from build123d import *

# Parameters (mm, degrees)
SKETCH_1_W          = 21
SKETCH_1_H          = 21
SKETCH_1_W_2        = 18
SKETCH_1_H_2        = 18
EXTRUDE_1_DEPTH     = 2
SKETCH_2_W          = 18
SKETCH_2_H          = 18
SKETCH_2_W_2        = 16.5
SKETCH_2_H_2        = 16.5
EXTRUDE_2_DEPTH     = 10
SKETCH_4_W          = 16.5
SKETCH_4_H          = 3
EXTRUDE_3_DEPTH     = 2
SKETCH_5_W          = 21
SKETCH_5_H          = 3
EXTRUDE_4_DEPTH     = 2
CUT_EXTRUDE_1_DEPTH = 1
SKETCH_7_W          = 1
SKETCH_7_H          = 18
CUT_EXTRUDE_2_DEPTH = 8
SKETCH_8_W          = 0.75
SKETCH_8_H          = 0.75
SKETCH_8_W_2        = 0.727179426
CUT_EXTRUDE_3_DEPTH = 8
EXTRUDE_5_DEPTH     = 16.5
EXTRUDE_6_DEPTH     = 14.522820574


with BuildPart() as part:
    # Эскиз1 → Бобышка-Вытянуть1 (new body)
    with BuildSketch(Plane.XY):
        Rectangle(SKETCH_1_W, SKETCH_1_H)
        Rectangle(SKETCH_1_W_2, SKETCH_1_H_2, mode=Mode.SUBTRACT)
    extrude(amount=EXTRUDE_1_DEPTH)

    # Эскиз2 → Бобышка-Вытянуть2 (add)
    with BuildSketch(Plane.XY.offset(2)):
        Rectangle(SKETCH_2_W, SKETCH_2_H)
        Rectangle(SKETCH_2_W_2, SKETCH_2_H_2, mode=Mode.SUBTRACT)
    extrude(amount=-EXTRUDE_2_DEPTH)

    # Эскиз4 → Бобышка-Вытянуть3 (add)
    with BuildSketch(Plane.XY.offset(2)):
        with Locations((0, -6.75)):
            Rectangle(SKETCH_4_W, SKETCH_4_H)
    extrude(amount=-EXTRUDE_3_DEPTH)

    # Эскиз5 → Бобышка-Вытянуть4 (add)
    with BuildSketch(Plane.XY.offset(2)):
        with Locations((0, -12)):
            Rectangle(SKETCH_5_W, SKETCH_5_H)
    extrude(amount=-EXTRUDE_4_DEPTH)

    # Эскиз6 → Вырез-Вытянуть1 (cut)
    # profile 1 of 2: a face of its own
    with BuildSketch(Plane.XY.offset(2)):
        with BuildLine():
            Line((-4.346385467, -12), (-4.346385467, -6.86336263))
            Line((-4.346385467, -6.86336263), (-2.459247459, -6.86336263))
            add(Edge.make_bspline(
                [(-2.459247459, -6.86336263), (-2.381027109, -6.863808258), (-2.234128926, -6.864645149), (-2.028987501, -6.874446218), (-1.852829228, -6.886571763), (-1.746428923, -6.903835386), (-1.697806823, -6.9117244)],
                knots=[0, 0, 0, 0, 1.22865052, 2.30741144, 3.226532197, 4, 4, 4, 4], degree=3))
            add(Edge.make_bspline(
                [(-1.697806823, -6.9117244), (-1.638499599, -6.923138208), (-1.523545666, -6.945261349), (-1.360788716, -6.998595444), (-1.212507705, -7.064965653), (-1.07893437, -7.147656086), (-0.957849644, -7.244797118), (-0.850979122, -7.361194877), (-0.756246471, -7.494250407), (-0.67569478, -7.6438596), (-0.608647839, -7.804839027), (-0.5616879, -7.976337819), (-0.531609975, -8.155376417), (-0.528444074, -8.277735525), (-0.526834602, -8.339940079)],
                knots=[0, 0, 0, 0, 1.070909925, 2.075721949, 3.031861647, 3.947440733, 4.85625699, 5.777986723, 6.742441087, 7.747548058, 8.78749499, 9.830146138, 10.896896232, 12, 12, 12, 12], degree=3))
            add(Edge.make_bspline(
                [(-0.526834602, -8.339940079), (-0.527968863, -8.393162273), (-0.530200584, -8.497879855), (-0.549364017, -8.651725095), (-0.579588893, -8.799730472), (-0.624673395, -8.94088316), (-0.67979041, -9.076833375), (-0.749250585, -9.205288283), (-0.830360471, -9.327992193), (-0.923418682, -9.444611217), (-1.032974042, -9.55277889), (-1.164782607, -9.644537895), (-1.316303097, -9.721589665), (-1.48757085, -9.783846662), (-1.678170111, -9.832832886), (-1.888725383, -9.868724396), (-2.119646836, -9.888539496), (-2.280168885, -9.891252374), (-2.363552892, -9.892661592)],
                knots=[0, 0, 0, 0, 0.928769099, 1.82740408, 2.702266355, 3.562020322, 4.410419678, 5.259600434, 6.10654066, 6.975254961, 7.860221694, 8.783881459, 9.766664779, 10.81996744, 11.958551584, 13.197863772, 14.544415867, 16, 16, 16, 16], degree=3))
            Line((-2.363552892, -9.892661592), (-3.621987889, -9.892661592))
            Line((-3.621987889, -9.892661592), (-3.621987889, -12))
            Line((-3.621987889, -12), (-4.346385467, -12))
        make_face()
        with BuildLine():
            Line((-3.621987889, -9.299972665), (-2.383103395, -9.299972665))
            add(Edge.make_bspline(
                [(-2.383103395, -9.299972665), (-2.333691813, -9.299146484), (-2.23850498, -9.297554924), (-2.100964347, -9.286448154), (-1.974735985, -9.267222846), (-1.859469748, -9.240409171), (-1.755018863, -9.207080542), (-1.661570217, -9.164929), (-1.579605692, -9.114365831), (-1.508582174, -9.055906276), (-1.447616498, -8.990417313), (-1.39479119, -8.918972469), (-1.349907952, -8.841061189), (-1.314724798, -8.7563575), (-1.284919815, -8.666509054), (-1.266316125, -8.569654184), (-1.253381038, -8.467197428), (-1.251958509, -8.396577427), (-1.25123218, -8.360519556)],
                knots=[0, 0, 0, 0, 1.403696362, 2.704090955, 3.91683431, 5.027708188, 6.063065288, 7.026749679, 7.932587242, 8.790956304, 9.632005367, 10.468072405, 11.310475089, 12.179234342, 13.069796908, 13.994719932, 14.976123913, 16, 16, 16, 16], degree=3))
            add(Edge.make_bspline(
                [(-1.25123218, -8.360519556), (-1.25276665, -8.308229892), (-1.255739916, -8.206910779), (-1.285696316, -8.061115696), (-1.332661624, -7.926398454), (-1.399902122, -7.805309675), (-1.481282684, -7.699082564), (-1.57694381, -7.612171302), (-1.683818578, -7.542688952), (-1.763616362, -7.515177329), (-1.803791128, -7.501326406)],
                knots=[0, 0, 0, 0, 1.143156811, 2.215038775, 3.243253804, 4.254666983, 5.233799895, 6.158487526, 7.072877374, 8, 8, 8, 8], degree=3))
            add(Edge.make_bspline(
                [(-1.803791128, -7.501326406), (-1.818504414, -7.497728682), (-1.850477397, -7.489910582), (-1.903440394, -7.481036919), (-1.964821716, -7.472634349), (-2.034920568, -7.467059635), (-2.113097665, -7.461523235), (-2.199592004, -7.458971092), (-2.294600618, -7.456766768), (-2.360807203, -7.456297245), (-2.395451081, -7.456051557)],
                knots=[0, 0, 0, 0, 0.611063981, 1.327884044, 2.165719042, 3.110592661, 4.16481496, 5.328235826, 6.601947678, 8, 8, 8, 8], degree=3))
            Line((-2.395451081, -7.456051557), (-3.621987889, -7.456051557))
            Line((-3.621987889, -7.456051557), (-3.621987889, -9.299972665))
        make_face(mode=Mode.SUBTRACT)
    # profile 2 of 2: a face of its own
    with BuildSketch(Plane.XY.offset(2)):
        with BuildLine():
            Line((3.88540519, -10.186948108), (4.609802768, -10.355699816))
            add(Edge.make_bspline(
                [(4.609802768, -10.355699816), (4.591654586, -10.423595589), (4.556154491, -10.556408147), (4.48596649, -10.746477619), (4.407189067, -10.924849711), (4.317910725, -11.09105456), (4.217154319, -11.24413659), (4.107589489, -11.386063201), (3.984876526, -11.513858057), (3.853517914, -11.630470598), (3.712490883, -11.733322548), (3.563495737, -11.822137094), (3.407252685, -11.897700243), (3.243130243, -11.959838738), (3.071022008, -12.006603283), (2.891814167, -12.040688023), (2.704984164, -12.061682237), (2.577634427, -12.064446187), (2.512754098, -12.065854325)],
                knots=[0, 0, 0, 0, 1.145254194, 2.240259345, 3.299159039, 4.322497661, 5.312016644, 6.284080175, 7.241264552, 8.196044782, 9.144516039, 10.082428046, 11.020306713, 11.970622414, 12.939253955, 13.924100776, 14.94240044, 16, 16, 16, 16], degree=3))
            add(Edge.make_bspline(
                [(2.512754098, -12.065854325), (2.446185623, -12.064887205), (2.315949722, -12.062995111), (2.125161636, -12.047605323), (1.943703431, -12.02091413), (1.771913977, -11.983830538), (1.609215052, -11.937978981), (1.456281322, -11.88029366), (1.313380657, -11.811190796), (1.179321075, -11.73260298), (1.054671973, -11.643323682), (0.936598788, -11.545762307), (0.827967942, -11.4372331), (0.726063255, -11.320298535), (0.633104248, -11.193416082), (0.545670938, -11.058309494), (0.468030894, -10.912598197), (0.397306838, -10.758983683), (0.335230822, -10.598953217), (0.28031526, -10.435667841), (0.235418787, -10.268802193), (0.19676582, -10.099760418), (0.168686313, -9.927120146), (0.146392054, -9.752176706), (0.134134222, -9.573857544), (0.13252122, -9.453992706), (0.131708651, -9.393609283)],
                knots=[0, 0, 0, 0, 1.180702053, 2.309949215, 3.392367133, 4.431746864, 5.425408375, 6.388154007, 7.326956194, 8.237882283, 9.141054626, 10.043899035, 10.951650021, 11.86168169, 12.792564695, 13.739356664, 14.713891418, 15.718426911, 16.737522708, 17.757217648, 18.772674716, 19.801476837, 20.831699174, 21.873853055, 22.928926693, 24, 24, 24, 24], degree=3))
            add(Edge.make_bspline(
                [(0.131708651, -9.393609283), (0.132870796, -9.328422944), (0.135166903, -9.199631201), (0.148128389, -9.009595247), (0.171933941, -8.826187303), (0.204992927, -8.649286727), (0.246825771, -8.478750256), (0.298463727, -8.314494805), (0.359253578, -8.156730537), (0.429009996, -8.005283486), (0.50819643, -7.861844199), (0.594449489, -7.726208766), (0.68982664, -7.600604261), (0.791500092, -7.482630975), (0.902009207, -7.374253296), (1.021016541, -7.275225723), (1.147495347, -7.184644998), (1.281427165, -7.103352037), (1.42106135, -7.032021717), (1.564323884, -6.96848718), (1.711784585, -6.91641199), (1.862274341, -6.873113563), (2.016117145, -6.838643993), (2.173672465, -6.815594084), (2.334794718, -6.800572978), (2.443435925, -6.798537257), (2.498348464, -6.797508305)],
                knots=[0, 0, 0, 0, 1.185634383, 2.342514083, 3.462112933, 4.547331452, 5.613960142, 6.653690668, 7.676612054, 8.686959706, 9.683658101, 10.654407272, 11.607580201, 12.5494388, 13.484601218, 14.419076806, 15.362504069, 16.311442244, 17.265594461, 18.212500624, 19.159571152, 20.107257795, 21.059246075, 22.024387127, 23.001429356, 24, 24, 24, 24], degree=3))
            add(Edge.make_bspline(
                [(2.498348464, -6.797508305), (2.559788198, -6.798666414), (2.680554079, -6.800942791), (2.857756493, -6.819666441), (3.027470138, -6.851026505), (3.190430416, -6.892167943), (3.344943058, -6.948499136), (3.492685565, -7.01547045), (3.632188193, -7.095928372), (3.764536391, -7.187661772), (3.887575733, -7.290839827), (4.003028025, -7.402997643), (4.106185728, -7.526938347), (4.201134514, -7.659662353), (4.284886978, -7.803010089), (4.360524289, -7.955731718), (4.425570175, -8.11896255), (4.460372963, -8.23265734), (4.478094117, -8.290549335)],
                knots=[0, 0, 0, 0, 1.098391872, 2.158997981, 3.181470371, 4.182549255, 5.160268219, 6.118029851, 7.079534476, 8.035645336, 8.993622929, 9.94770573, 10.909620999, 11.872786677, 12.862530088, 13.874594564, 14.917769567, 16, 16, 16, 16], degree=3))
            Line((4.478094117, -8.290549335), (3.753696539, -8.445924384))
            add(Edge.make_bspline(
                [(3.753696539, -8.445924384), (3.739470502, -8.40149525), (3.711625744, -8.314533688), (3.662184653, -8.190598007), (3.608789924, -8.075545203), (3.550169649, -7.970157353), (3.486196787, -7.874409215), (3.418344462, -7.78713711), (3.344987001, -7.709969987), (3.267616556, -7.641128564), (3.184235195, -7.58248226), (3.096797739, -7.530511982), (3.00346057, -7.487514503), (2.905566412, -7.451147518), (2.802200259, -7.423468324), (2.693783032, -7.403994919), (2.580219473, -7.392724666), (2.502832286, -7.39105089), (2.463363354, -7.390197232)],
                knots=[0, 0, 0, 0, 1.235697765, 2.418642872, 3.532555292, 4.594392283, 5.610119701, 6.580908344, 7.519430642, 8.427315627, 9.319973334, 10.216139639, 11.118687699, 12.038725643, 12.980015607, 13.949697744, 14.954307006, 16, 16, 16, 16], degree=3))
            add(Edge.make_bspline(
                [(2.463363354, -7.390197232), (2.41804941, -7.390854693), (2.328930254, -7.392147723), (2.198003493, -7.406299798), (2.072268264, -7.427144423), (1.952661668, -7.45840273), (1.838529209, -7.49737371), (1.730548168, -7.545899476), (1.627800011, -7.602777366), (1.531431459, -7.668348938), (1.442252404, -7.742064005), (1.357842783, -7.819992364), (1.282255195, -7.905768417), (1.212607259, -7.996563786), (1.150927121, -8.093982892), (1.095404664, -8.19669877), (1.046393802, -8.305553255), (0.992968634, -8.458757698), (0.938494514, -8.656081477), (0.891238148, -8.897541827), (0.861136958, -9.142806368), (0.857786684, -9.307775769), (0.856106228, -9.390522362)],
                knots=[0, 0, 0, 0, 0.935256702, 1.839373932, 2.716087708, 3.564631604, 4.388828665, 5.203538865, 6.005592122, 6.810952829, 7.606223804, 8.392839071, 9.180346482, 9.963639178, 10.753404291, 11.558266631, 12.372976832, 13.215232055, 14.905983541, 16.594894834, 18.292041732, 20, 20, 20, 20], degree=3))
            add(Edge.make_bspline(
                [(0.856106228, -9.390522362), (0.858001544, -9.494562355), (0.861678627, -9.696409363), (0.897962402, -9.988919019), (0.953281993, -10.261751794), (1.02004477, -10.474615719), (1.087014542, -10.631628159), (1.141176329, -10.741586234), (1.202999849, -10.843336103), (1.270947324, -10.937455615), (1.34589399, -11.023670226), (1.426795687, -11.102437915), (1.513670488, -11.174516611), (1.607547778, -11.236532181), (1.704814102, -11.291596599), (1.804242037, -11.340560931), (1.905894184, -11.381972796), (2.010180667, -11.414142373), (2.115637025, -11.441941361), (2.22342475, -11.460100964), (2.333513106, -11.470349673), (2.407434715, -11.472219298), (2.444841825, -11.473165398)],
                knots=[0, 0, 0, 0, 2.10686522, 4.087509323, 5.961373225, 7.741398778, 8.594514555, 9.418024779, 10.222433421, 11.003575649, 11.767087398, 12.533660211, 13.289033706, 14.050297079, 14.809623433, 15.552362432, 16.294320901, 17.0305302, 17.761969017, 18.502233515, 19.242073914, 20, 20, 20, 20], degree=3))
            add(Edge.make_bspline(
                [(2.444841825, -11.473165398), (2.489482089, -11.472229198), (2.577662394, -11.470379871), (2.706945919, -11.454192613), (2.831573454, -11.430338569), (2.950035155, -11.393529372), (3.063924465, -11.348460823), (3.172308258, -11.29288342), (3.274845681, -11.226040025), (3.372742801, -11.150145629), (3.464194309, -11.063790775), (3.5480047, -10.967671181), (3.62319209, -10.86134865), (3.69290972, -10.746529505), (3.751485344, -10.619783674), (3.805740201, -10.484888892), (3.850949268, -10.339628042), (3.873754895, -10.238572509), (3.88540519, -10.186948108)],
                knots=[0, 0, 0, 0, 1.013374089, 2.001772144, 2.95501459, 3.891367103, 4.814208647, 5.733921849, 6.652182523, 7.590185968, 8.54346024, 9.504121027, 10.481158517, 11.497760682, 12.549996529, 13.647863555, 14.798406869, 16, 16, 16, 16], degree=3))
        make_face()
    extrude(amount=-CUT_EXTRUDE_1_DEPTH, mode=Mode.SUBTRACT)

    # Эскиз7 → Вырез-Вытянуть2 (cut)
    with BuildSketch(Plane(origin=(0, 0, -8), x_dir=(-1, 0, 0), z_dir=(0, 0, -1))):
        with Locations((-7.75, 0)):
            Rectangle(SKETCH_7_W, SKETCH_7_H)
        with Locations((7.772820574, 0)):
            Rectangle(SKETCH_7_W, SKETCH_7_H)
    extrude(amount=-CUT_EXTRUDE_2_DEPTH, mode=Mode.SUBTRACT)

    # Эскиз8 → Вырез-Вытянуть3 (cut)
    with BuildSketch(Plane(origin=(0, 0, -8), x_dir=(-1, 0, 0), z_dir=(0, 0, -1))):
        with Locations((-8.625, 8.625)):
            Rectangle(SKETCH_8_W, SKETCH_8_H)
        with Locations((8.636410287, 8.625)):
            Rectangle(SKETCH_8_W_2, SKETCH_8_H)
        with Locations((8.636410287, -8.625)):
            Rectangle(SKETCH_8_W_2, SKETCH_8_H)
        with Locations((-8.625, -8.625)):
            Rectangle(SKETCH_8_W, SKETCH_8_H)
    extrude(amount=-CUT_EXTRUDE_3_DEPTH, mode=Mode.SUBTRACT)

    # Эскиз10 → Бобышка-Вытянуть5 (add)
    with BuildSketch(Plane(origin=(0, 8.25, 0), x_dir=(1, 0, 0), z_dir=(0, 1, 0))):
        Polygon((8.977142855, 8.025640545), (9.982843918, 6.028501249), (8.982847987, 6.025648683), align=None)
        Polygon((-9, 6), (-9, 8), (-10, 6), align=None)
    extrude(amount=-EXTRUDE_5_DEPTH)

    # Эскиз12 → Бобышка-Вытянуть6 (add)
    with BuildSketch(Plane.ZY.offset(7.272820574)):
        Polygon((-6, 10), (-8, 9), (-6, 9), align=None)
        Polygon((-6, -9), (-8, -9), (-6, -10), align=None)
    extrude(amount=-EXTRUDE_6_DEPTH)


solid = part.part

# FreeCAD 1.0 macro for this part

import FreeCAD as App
import Part
import Sketcher

doc = App.newDocument("Part")
body = doc.addObject("PartDesign::Body", "Body")

# Sketch on XY plane
sketch1 = body.newObject("Sketcher::SketchObject", "Sketch")
sketch1.AttachmentSupport = (doc.getObject("XY_Plane"), [""])
sketch1.MapMode = "FlatFace"
sketch1.addGeometry(Part.LineSegment(App.Vector(-10.5, 10.5, 0), App.Vector(-10.5, -10.5, 0)), False)
sketch1.addGeometry(Part.LineSegment(App.Vector(-10.5, -10.5, 0), App.Vector(10.5, -10.5, 0)), False)
sketch1.addGeometry(Part.LineSegment(App.Vector(10.5, -10.5, 0), App.Vector(10.5, 10.5, 0)), False)
sketch1.addGeometry(Part.LineSegment(App.Vector(10.5, 10.5, 0), App.Vector(-10.5, 10.5, 0)), False)
sketch1.addGeometry(Part.LineSegment(App.Vector(9, -9, 0), App.Vector(-9, -9, 0)), False)
sketch1.addGeometry(Part.LineSegment(App.Vector(-9, -9, 0), App.Vector(-9, 9, 0)), False)
sketch1.addGeometry(Part.LineSegment(App.Vector(-9, 9, 0), App.Vector(9, 9, 0)), False)
sketch1.addGeometry(Part.LineSegment(App.Vector(9, 9, 0), App.Vector(9, -9, 0)), False)
sketch1.addConstraint(Sketcher.Constraint("Coincident", 0, 2, 1, 1))
sketch1.addConstraint(Sketcher.Constraint("Coincident", 1, 2, 2, 1))
sketch1.addConstraint(Sketcher.Constraint("Coincident", 2, 2, 3, 1))
sketch1.addConstraint(Sketcher.Constraint("Coincident", 3, 2, 0, 1))
sketch1.addConstraint(Sketcher.Constraint("Coincident", 4, 2, 5, 1))
sketch1.addConstraint(Sketcher.Constraint("Coincident", 5, 2, 6, 1))
sketch1.addConstraint(Sketcher.Constraint("Coincident", 6, 2, 7, 1))
sketch1.addConstraint(Sketcher.Constraint("Coincident", 7, 2, 4, 1))
sketch1.addConstraint(Sketcher.Constraint("Vertical", 0))
sketch1.addConstraint(Sketcher.Constraint("Horizontal", 1))
sketch1.addConstraint(Sketcher.Constraint("Vertical", 2))
sketch1.addConstraint(Sketcher.Constraint("Horizontal", 3))
sketch1.addConstraint(Sketcher.Constraint("Horizontal", 4))
sketch1.addConstraint(Sketcher.Constraint("Vertical", 5))
sketch1.addConstraint(Sketcher.Constraint("Horizontal", 6))
sketch1.addConstraint(Sketcher.Constraint("Vertical", 7))
sketch1.addConstraint(Sketcher.Constraint("Symmetric", 0, 2, 2, 2, -1, 1))
sketch1.addConstraint(Sketcher.Constraint("Symmetric", 4, 2, 6, 2, -1, 1))
sketch1.addConstraint(Sketcher.Constraint("Equal", 3, 0))
sketch1.addConstraint(Sketcher.Constraint("Equal", 6, 5))
sketch1.addConstraint(Sketcher.Constraint("DistanceX", 1, 1, 1, 2, 21.0))
sketch1.addConstraint(Sketcher.Constraint("DistanceX", 4, 2, 4, 1, 18.0))
pad1 = body.newObject("PartDesign::Pad", "Pad")
pad1.Profile = sketch1
pad1.Length = 2

# Sketch on XY plane
sketch2 = body.newObject("Sketcher::SketchObject", "Sketch001")
sketch2.AttachmentSupport = (doc.getObject("XY_Plane"), [""])
sketch2.MapMode = "FlatFace"
sketch2.AttachmentOffset = App.Placement(App.Vector(0, 0, 2), App.Rotation())
sketch2.addGeometry(Part.LineSegment(App.Vector(-9, 9, 0), App.Vector(-9, -9, 0)), False)
sketch2.addGeometry(Part.LineSegment(App.Vector(-9, -9, 0), App.Vector(9, -9, 0)), False)
sketch2.addGeometry(Part.LineSegment(App.Vector(9, -9, 0), App.Vector(9, 9, 0)), False)
sketch2.addGeometry(Part.LineSegment(App.Vector(9, 9, 0), App.Vector(-9, 9, 0)), False)
sketch2.addGeometry(Part.LineSegment(App.Vector(8.25, -8.25, 0), App.Vector(-8.25, -8.25, 0)), False)
sketch2.addGeometry(Part.LineSegment(App.Vector(-8.25, -8.25, 0), App.Vector(-8.25, 8.25, 0)), False)
sketch2.addGeometry(Part.LineSegment(App.Vector(-8.25, 8.25, 0), App.Vector(8.25, 8.25, 0)), False)
sketch2.addGeometry(Part.LineSegment(App.Vector(8.25, 8.25, 0), App.Vector(8.25, -8.25, 0)), False)
sketch2.addConstraint(Sketcher.Constraint("Coincident", 0, 2, 1, 1))
sketch2.addConstraint(Sketcher.Constraint("Coincident", 1, 2, 2, 1))
sketch2.addConstraint(Sketcher.Constraint("Coincident", 2, 2, 3, 1))
sketch2.addConstraint(Sketcher.Constraint("Coincident", 3, 2, 0, 1))
sketch2.addConstraint(Sketcher.Constraint("Coincident", 4, 2, 5, 1))
sketch2.addConstraint(Sketcher.Constraint("Coincident", 5, 2, 6, 1))
sketch2.addConstraint(Sketcher.Constraint("Coincident", 6, 2, 7, 1))
sketch2.addConstraint(Sketcher.Constraint("Coincident", 7, 2, 4, 1))
sketch2.addConstraint(Sketcher.Constraint("Vertical", 0))
sketch2.addConstraint(Sketcher.Constraint("Horizontal", 1))
sketch2.addConstraint(Sketcher.Constraint("Vertical", 2))
sketch2.addConstraint(Sketcher.Constraint("Horizontal", 3))
sketch2.addConstraint(Sketcher.Constraint("Horizontal", 4))
sketch2.addConstraint(Sketcher.Constraint("Vertical", 5))
sketch2.addConstraint(Sketcher.Constraint("Horizontal", 6))
sketch2.addConstraint(Sketcher.Constraint("Vertical", 7))
sketch2.addConstraint(Sketcher.Constraint("Symmetric", 0, 2, 2, 2, -1, 1))
sketch2.addConstraint(Sketcher.Constraint("Symmetric", 4, 2, 6, 2, -1, 1))
sketch2.addConstraint(Sketcher.Constraint("Equal", 3, 0))
sketch2.addConstraint(Sketcher.Constraint("Equal", 6, 5))
sketch2.addConstraint(Sketcher.Constraint("DistanceX", 1, 1, 1, 2, 18.0))
sketch2.addConstraint(Sketcher.Constraint("DistanceX", 4, 2, 4, 1, 16.5))
pad2 = body.newObject("PartDesign::Pad", "Pad001")
pad2.Profile = sketch2
pad2.Length = 10
pad2.Reversed = True

# Sketch on XY plane
sketch3 = body.newObject("Sketcher::SketchObject", "Sketch002")
sketch3.AttachmentSupport = (doc.getObject("XY_Plane"), [""])
sketch3.MapMode = "FlatFace"
sketch3.AttachmentOffset = App.Placement(App.Vector(0, 0, 2), App.Rotation())
sketch3.addGeometry(Part.LineSegment(App.Vector(-8.25, -5.25, 0), App.Vector(-8.25, -8.25, 0)), False)
sketch3.addGeometry(Part.LineSegment(App.Vector(-8.25, -8.25, 0), App.Vector(8.25, -8.25, 0)), False)
sketch3.addGeometry(Part.LineSegment(App.Vector(8.25, -8.25, 0), App.Vector(8.25, -5.25, 0)), False)
sketch3.addGeometry(Part.LineSegment(App.Vector(8.25, -5.25, 0), App.Vector(-8.25, -5.25, 0)), False)
sketch3.addConstraint(Sketcher.Constraint("Coincident", 0, 2, 1, 1))
sketch3.addConstraint(Sketcher.Constraint("Coincident", 1, 2, 2, 1))
sketch3.addConstraint(Sketcher.Constraint("Coincident", 2, 2, 3, 1))
sketch3.addConstraint(Sketcher.Constraint("Coincident", 3, 2, 0, 1))
sketch3.addConstraint(Sketcher.Constraint("Vertical", 0))
sketch3.addConstraint(Sketcher.Constraint("Horizontal", 1))
sketch3.addConstraint(Sketcher.Constraint("Vertical", 2))
sketch3.addConstraint(Sketcher.Constraint("Horizontal", 3))
sketch3.addConstraint(Sketcher.Constraint("DistanceY", 0, 2, 0, 1, 3.0))
sketch3.addConstraint(Sketcher.Constraint("DistanceX", 1, 1, 1, 2, 16.5))
sketch3.addConstraint(Sketcher.Constraint("DistanceX", 0, 2, -1, 1, 8.25))
sketch3.addConstraint(Sketcher.Constraint("DistanceY", 0, 2, -1, 1, 8.25))
pad3 = body.newObject("PartDesign::Pad", "Pad002")
pad3.Profile = sketch3
pad3.Length = 2
pad3.Reversed = True

# Sketch on XY plane
sketch4 = body.newObject("Sketcher::SketchObject", "Sketch003")
sketch4.AttachmentSupport = (doc.getObject("XY_Plane"), [""])
sketch4.MapMode = "FlatFace"
sketch4.AttachmentOffset = App.Placement(App.Vector(0, 0, 2), App.Rotation())
sketch4.addGeometry(Part.LineSegment(App.Vector(-10.5, -10.5, 0), App.Vector(-10.5, -13.5, 0)), False)
sketch4.addGeometry(Part.LineSegment(App.Vector(-10.5, -13.5, 0), App.Vector(10.5, -13.5, 0)), False)
sketch4.addGeometry(Part.LineSegment(App.Vector(10.5, -13.5, 0), App.Vector(10.5, -10.5, 0)), False)
sketch4.addGeometry(Part.LineSegment(App.Vector(10.5, -10.5, 0), App.Vector(-10.5, -10.5, 0)), False)
sketch4.addConstraint(Sketcher.Constraint("Coincident", 0, 2, 1, 1))
sketch4.addConstraint(Sketcher.Constraint("Coincident", 1, 2, 2, 1))
sketch4.addConstraint(Sketcher.Constraint("Coincident", 2, 2, 3, 1))
sketch4.addConstraint(Sketcher.Constraint("Coincident", 3, 2, 0, 1))
sketch4.addConstraint(Sketcher.Constraint("Vertical", 0))
sketch4.addConstraint(Sketcher.Constraint("Horizontal", 1))
sketch4.addConstraint(Sketcher.Constraint("Vertical", 2))
sketch4.addConstraint(Sketcher.Constraint("Horizontal", 3))
sketch4.addConstraint(Sketcher.Constraint("DistanceX", 1, 1, 1, 2, 21.0))
sketch4.addConstraint(Sketcher.Constraint("DistanceY", 0, 2, 0, 1, 3.0))
sketch4.addConstraint(Sketcher.Constraint("DistanceX", 0, 2, -1, 1, 10.5))
sketch4.addConstraint(Sketcher.Constraint("DistanceY", 0, 2, -1, 1, 13.5))
pad4 = body.newObject("PartDesign::Pad", "Pad003")
pad4.Profile = sketch4
pad4.Length = 2
pad4.Reversed = True

# Sketch on XY plane
sketch5 = body.newObject("Sketcher::SketchObject", "Sketch004")
sketch5.AttachmentSupport = (doc.getObject("XY_Plane"), [""])
sketch5.MapMode = "FlatFace"
sketch5.AttachmentOffset = App.Placement(App.Vector(0, 0, 2), App.Rotation())
sketch5.addGeometry(Part.LineSegment(App.Vector(-4.346385, -6.863363, 0), App.Vector(-4.346385, -12, 0)), False)
sketch5.addGeometry(Part.LineSegment(App.Vector(-4.346385, -12, 0), App.Vector(-3.621988, -12, 0)), False)
sketch5.addGeometry(Part.LineSegment(App.Vector(-3.621988, -12, 0), App.Vector(-3.621988, -9.892662, 0)), False)
sketch5.addGeometry(Part.LineSegment(App.Vector(-3.621988, -9.892662, 0), App.Vector(-2.363553, -9.892662, 0)), False)
sketch5.addGeometry(Part.BSplineCurve([App.Vector(-0.526835, -8.33994, 0), App.Vector(-0.527969, -8.393162, 0), App.Vector(-0.530201, -8.49788, 0), App.Vector(-0.549364, -8.651725, 0), App.Vector(-0.579589, -8.79973, 0), App.Vector(-0.624673, -8.940883, 0), App.Vector(-0.67979, -9.076833, 0), App.Vector(-0.749251, -9.205288, 0), App.Vector(-0.83036, -9.327992, 0), App.Vector(-0.923419, -9.444611, 0), App.Vector(-1.032974, -9.552779, 0), App.Vector(-1.164783, -9.644538, 0), App.Vector(-1.316303, -9.72159, 0), App.Vector(-1.487571, -9.783847, 0), App.Vector(-1.67817, -9.832833, 0), App.Vector(-1.888725, -9.868724, 0), App.Vector(-2.119647, -9.888539, 0), App.Vector(-2.280169, -9.891252, 0), App.Vector(-2.363553, -9.892662, 0)], [4, 1, 1, 1, 1, 1, 1, 1, 1, 1, 1, 1, 1, 1, 1, 1, 4], [0, 0.928769099, 1.82740408, 2.702266355, 3.562020322, 4.410419678, 5.259600434, 6.10654066, 6.975254961, 7.860221694, 8.783881459, 9.766664779, 10.81996744, 11.958551584, 13.197863772, 14.544415867, 16], False, 3, [1, 1, 1, 1, 1, 1, 1, 1, 1, 1, 1, 1, 1, 1, 1, 1, 1, 1, 1], False), False)
sketch5.addGeometry(Part.BSplineCurve([App.Vector(-1.697807, -6.911724, 0), App.Vector(-1.6385, -6.923138, 0), App.Vector(-1.523546, -6.945261, 0), App.Vector(-1.360789, -6.998595, 0), App.Vector(-1.212508, -7.064966, 0), App.Vector(-1.078934, -7.147656, 0), App.Vector(-0.95785, -7.244797, 0), App.Vector(-0.850979, -7.361195, 0), App.Vector(-0.756246, -7.49425, 0), App.Vector(-0.675695, -7.64386, 0), App.Vector(-0.608648, -7.804839, 0), App.Vector(-0.561688, -7.976338, 0), App.Vector(-0.53161, -8.155376, 0), App.Vector(-0.528444, -8.277736, 0), App.Vector(-0.526835, -8.33994, 0)], [4, 1, 1, 1, 1, 1, 1, 1, 1, 1, 1, 1, 4], [0, 1.070909925, 2.075721949, 3.031861647, 3.947440733, 4.85625699, 5.777986723, 6.742441087, 7.747548058, 8.78749499, 9.830146138, 10.896896232, 12], False, 3, [1, 1, 1, 1, 1, 1, 1, 1, 1, 1, 1, 1, 1, 1, 1], False), False)
sketch5.addGeometry(Part.BSplineCurve([App.Vector(-2.459247, -6.863363, 0), App.Vector(-2.381027, -6.863808, 0), App.Vector(-2.234129, -6.864645, 0), App.Vector(-2.028988, -6.874446, 0), App.Vector(-1.852829, -6.886572, 0), App.Vector(-1.746429, -6.903835, 0), App.Vector(-1.697807, -6.911724, 0)], [4, 1, 1, 1, 4], [0, 1.22865052, 2.30741144, 3.226532197, 4], False, 3, [1, 1, 1, 1, 1, 1, 1], False), False)
sketch5.addGeometry(Part.LineSegment(App.Vector(-2.459247, -6.863363, 0), App.Vector(-4.346385, -6.863363, 0)), False)
sketch5.addGeometry(Part.LineSegment(App.Vector(-3.621988, -9.299973, 0), App.Vector(-3.621988, -7.456052, 0)), False)
sketch5.addGeometry(Part.LineSegment(App.Vector(-3.621988, -7.456052, 0), App.Vector(-2.395451, -7.456052, 0)), False)
sketch5.addGeometry(Part.BSplineCurve([App.Vector(-1.803791, -7.501326, 0), App.Vector(-1.818504, -7.497729, 0), App.Vector(-1.850477, -7.489911, 0), App.Vector(-1.90344, -7.481037, 0), App.Vector(-1.964822, -7.472634, 0), App.Vector(-2.034921, -7.46706, 0), App.Vector(-2.113098, -7.461523, 0), App.Vector(-2.199592, -7.458971, 0), App.Vector(-2.294601, -7.456767, 0), App.Vector(-2.360807, -7.456297, 0), App.Vector(-2.395451, -7.456052, 0)], [4, 1, 1, 1, 1, 1, 1, 1, 4], [0, 0.611063981, 1.327884044, 2.165719042, 3.110592661, 4.16481496, 5.328235826, 6.601947678, 8], False, 3, [1, 1, 1, 1, 1, 1, 1, 1, 1, 1, 1], False), False)
sketch5.addGeometry(Part.BSplineCurve([App.Vector(-1.251232, -8.36052, 0), App.Vector(-1.252767, -8.30823, 0), App.Vector(-1.25574, -8.206911, 0), App.Vector(-1.285696, -8.061116, 0), App.Vector(-1.332662, -7.926398, 0), App.Vector(-1.399902, -7.80531, 0), App.Vector(-1.481283, -7.699083, 0), App.Vector(-1.576944, -7.612171, 0), App.Vector(-1.683819, -7.542689, 0), App.Vector(-1.763616, -7.515177, 0), App.Vector(-1.803791, -7.501326, 0)], [4, 1, 1, 1, 1, 1, 1, 1, 4], [0, 1.143156811, 2.215038775, 3.243253804, 4.254666983, 5.233799895, 6.158487526, 7.072877374, 8], False, 3, [1, 1, 1, 1, 1, 1, 1, 1, 1, 1, 1], False), False)
sketch5.addGeometry(Part.BSplineCurve([App.Vector(-2.383103, -9.299973, 0), App.Vector(-2.333692, -9.299146, 0), App.Vector(-2.238505, -9.297555, 0), App.Vector(-2.100964, -9.286448, 0), App.Vector(-1.974736, -9.267223, 0), App.Vector(-1.85947, -9.240409, 0), App.Vector(-1.755019, -9.207081, 0), App.Vector(-1.66157, -9.164929, 0), App.Vector(-1.579606, -9.114366, 0), App.Vector(-1.508582, -9.055906, 0), App.Vector(-1.447616, -8.990417, 0), App.Vector(-1.394791, -8.918972, 0), App.Vector(-1.349908, -8.841061, 0), App.Vector(-1.314725, -8.756358, 0), App.Vector(-1.28492, -8.666509, 0), App.Vector(-1.266316, -8.569654, 0), App.Vector(-1.253381, -8.467197, 0), App.Vector(-1.251959, -8.396577, 0), App.Vector(-1.251232, -8.36052, 0)], [4, 1, 1, 1, 1, 1, 1, 1, 1, 1, 1, 1, 1, 1, 1, 1, 4], [0, 1.403696362, 2.704090955, 3.91683431, 5.027708188, 6.063065288, 7.026749679, 7.932587242, 8.790956304, 9.632005367, 10.468072405, 11.310475089, 12.179234342, 13.069796908, 13.994719932, 14.976123913, 16], False, 3, [1, 1, 1, 1, 1, 1, 1, 1, 1, 1, 1, 1, 1, 1, 1, 1, 1, 1, 1], False), False)
sketch5.addGeometry(Part.LineSegment(App.Vector(-2.383103, -9.299973, 0), App.Vector(-3.621988, -9.299973, 0)), False)
sketch5.addGeometry(Part.LineSegment(App.Vector(4.609803, -10.3557, 0), App.Vector(3.885405, -10.186948, 0)), False)
sketch5.addGeometry(Part.BSplineCurve([App.Vector(2.444842, -11.473165, 0), App.Vector(2.489482, -11.472229, 0), App.Vector(2.577662, -11.47038, 0), App.Vector(2.706946, -11.454193, 0), App.Vector(2.831573, -11.430339, 0), App.Vector(2.950035, -11.393529, 0), App.Vector(3.063924, -11.348461, 0), App.Vector(3.172308, -11.292883, 0), App.Vector(3.274846, -11.22604, 0), App.Vector(3.372743, -11.150146, 0), App.Vector(3.464194, -11.063791, 0), App.Vector(3.548005, -10.967671, 0), App.Vector(3.623192, -10.861349, 0), App.Vector(3.69291, -10.74653, 0), App.Vector(3.751485, -10.619784, 0), App.Vector(3.80574, -10.484889, 0), App.Vector(3.850949, -10.339628, 0), App.Vector(3.873755, -10.238573, 0), App.Vector(3.885405, -10.186948, 0)], [4, 1, 1, 1, 1, 1, 1, 1, 1, 1, 1, 1, 1, 1, 1, 1, 4], [0, 1.013374089, 2.001772144, 2.95501459, 3.891367103, 4.814208647, 5.733921849, 6.652182523, 7.590185968, 8.54346024, 9.504121027, 10.481158517, 11.497760682, 12.549996529, 13.647863555, 14.798406869, 16], False, 3, [1, 1, 1, 1, 1, 1, 1, 1, 1, 1, 1, 1, 1, 1, 1, 1, 1, 1, 1], False), False)
sketch5.addGeometry(Part.BSplineCurve([App.Vector(0.856106, -9.390522, 0), App.Vector(0.858002, -9.494562, 0), App.Vector(0.861679, -9.696409, 0), App.Vector(0.897962, -9.988919, 0), App.Vector(0.953282, -10.261752, 0), App.Vector(1.020045, -10.474616, 0), App.Vector(1.087015, -10.631628, 0), App.Vector(1.141176, -10.741586, 0), App.Vector(1.203, -10.843336, 0), App.Vector(1.270947, -10.937456, 0), App.Vector(1.345894, -11.02367, 0), App.Vector(1.426796, -11.102438, 0), App.Vector(1.51367, -11.174517, 0), App.Vector(1.607548, -11.236532, 0), App.Vector(1.704814, -11.291597, 0), App.Vector(1.804242, -11.340561, 0), App.Vector(1.905894, -11.381973, 0), App.Vector(2.010181, -11.414142, 0), App.Vector(2.115637, -11.441941, 0), App.Vector(2.223425, -11.460101, 0), App.Vector(2.333513, -11.47035, 0), App.Vector(2.407435, -11.472219, 0), App.Vector(2.444842, -11.473165, 0)], [4, 1, 1, 1, 1, 1, 1, 1, 1, 1, 1, 1, 1, 1, 1, 1, 1, 1, 1, 1, 4], [0, 2.10686522, 4.087509323, 5.961373225, 7.741398778, 8.594514555, 9.418024779, 10.222433421, 11.003575649, 11.767087398, 12.533660211, 13.289033706, 14.050297079, 14.809623433, 15.552362432, 16.294320901, 17.0305302, 17.761969017, 18.502233515, 19.242073914, 20], False, 3, [1, 1, 1, 1, 1, 1, 1, 1, 1, 1, 1, 1, 1, 1, 1, 1, 1, 1, 1, 1, 1, 1, 1], False), False)
sketch5.addGeometry(Part.BSplineCurve([App.Vector(2.463363, -7.390197, 0), App.Vector(2.418049, -7.390855, 0), App.Vector(2.32893, -7.392148, 0), App.Vector(2.198003, -7.4063, 0), App.Vector(2.072268, -7.427144, 0), App.Vector(1.952662, -7.458403, 0), App.Vector(1.838529, -7.497374, 0), App.Vector(1.730548, -7.545899, 0), App.Vector(1.6278, -7.602777, 0), App.Vector(1.531431, -7.668349, 0), App.Vector(1.442252, -7.742064, 0), App.Vector(1.357843, -7.819992, 0), App.Vector(1.282255, -7.905768, 0), App.Vector(1.212607, -7.996564, 0), App.Vector(1.150927, -8.093983, 0), App.Vector(1.095405, -8.196699, 0), App.Vector(1.046394, -8.305553, 0), App.Vector(0.992969, -8.458758, 0), App.Vector(0.938495, -8.656081, 0), App.Vector(0.891238, -8.897542, 0), App.Vector(0.861137, -9.142806, 0), App.Vector(0.857787, -9.307776, 0), App.Vector(0.856106, -9.390522, 0)], [4, 1, 1, 1, 1, 1, 1, 1, 1, 1, 1, 1, 1, 1, 1, 1, 1, 1, 1, 1, 4], [0, 0.935256702, 1.839373932, 2.716087708, 3.564631604, 4.388828665, 5.203538865, 6.005592122, 6.810952829, 7.606223804, 8.392839071, 9.180346482, 9.963639178, 10.753404291, 11.558266631, 12.372976832, 13.215232055, 14.905983541, 16.594894834, 18.292041732, 20], False, 3, [1, 1, 1, 1, 1, 1, 1, 1, 1, 1, 1, 1, 1, 1, 1, 1, 1, 1, 1, 1, 1, 1, 1], False), False)
sketch5.addGeometry(Part.BSplineCurve([App.Vector(3.753697, -8.445924, 0), App.Vector(3.739471, -8.401495, 0), App.Vector(3.711626, -8.314534, 0), App.Vector(3.662185, -8.190598, 0), App.Vector(3.60879, -8.075545, 0), App.Vector(3.55017, -7.970157, 0), App.Vector(3.486197, -7.874409, 0), App.Vector(3.418344, -7.787137, 0), App.Vector(3.344987, -7.70997, 0), App.Vector(3.267617, -7.641129, 0), App.Vector(3.184235, -7.582482, 0), App.Vector(3.096798, -7.530512, 0), App.Vector(3.003461, -7.487515, 0), App.Vector(2.905566, -7.451148, 0), App.Vector(2.8022, -7.423468, 0), App.Vector(2.693783, -7.403995, 0), App.Vector(2.580219, -7.392725, 0), App.Vector(2.502832, -7.391051, 0), App.Vector(2.463363, -7.390197, 0)], [4, 1, 1, 1, 1, 1, 1, 1, 1, 1, 1, 1, 1, 1, 1, 1, 4], [0, 1.235697765, 2.418642872, 3.532555292, 4.594392283, 5.610119701, 6.580908344, 7.519430642, 8.427315627, 9.319973334, 10.216139639, 11.118687699, 12.038725643, 12.980015607, 13.949697744, 14.954307006, 16], False, 3, [1, 1, 1, 1, 1, 1, 1, 1, 1, 1, 1, 1, 1, 1, 1, 1, 1, 1, 1], False), False)
sketch5.addGeometry(Part.LineSegment(App.Vector(3.753697, -8.445924, 0), App.Vector(4.478094, -8.290549, 0)), False)
sketch5.addGeometry(Part.BSplineCurve([App.Vector(2.498348, -6.797508, 0), App.Vector(2.559788, -6.798666, 0), App.Vector(2.680554, -6.800943, 0), App.Vector(2.857756, -6.819666, 0), App.Vector(3.02747, -6.851027, 0), App.Vector(3.19043, -6.892168, 0), App.Vector(3.344943, -6.948499, 0), App.Vector(3.492686, -7.01547, 0), App.Vector(3.632188, -7.095928, 0), App.Vector(3.764536, -7.187662, 0), App.Vector(3.887576, -7.29084, 0), App.Vector(4.003028, -7.402998, 0), App.Vector(4.106186, -7.526938, 0), App.Vector(4.201135, -7.659662, 0), App.Vector(4.284887, -7.80301, 0), App.Vector(4.360524, -7.955732, 0), App.Vector(4.42557, -8.118963, 0), App.Vector(4.460373, -8.232657, 0), App.Vector(4.478094, -8.290549, 0)], [4, 1, 1, 1, 1, 1, 1, 1, 1, 1, 1, 1, 1, 1, 1, 1, 4], [0, 1.098391872, 2.158997981, 3.181470371, 4.182549255, 5.160268219, 6.118029851, 7.079534476, 8.035645336, 8.993622929, 9.94770573, 10.909620999, 11.872786677, 12.862530088, 13.874594564, 14.917769567, 16], False, 3, [1, 1, 1, 1, 1, 1, 1, 1, 1, 1, 1, 1, 1, 1, 1, 1, 1, 1, 1], False), False)
sketch5.addGeometry(Part.BSplineCurve([App.Vector(0.131709, -9.393609, 0), App.Vector(0.132871, -9.328423, 0), App.Vector(0.135167, -9.199631, 0), App.Vector(0.148128, -9.009595, 0), App.Vector(0.171934, -8.826187, 0), App.Vector(0.204993, -8.649287, 0), App.Vector(0.246826, -8.47875, 0), App.Vector(0.298464, -8.314495, 0), App.Vector(0.359254, -8.156731, 0), App.Vector(0.42901, -8.005283, 0), App.Vector(0.508196, -7.861844, 0), App.Vector(0.594449, -7.726209, 0), App.Vector(0.689827, -7.600604, 0), App.Vector(0.7915, -7.482631, 0), App.Vector(0.902009, -7.374253, 0), App.Vector(1.021017, -7.275226, 0), App.Vector(1.147495, -7.184645, 0), App.Vector(1.281427, -7.103352, 0), App.Vector(1.421061, -7.032022, 0), App.Vector(1.564324, -6.968487, 0), App.Vector(1.711785, -6.916412, 0), App.Vector(1.862274, -6.873114, 0), App.Vector(2.016117, -6.838644, 0), App.Vector(2.173672, -6.815594, 0), App.Vector(2.334795, -6.800573, 0), App.Vector(2.443436, -6.798537, 0), App.Vector(2.498348, -6.797508, 0)], [4, 1, 1, 1, 1, 1, 1, 1, 1, 1, 1, 1, 1, 1, 1, 1, 1, 1, 1, 1, 1, 1, 1, 1, 4], [0, 1.185634383, 2.342514083, 3.462112933, 4.547331452, 5.613960142, 6.653690668, 7.676612054, 8.686959706, 9.683658101, 10.654407272, 11.607580201, 12.5494388, 13.484601218, 14.419076806, 15.362504069, 16.311442244, 17.265594461, 18.212500624, 19.159571152, 20.107257795, 21.059246075, 22.024387127, 23.001429356, 24], False, 3, [1, 1, 1, 1, 1, 1, 1, 1, 1, 1, 1, 1, 1, 1, 1, 1, 1, 1, 1, 1, 1, 1, 1, 1, 1, 1, 1], False), False)
sketch5.addGeometry(Part.BSplineCurve([App.Vector(2.512754, -12.065854, 0), App.Vector(2.446186, -12.064887, 0), App.Vector(2.31595, -12.062995, 0), App.Vector(2.125162, -12.047605, 0), App.Vector(1.943703, -12.020914, 0), App.Vector(1.771914, -11.983831, 0), App.Vector(1.609215, -11.937979, 0), App.Vector(1.456281, -11.880294, 0), App.Vector(1.313381, -11.811191, 0), App.Vector(1.179321, -11.732603, 0), App.Vector(1.054672, -11.643324, 0), App.Vector(0.936599, -11.545762, 0), App.Vector(0.827968, -11.437233, 0), App.Vector(0.726063, -11.320299, 0), App.Vector(0.633104, -11.193416, 0), App.Vector(0.545671, -11.058309, 0), App.Vector(0.468031, -10.912598, 0), App.Vector(0.397307, -10.758984, 0), App.Vector(0.335231, -10.598953, 0), App.Vector(0.280315, -10.435668, 0), App.Vector(0.235419, -10.268802, 0), App.Vector(0.196766, -10.09976, 0), App.Vector(0.168686, -9.92712, 0), App.Vector(0.146392, -9.752177, 0), App.Vector(0.134134, -9.573858, 0), App.Vector(0.132521, -9.453993, 0), App.Vector(0.131709, -9.393609, 0)], [4, 1, 1, 1, 1, 1, 1, 1, 1, 1, 1, 1, 1, 1, 1, 1, 1, 1, 1, 1, 1, 1, 1, 1, 4], [0, 1.180702053, 2.309949215, 3.392367133, 4.431746864, 5.425408375, 6.388154007, 7.326956194, 8.237882283, 9.141054626, 10.043899035, 10.951650021, 11.86168169, 12.792564695, 13.739356664, 14.713891418, 15.718426911, 16.737522708, 17.757217648, 18.772674716, 19.801476837, 20.831699174, 21.873853055, 22.928926693, 24], False, 3, [1, 1, 1, 1, 1, 1, 1, 1, 1, 1, 1, 1, 1, 1, 1, 1, 1, 1, 1, 1, 1, 1, 1, 1, 1, 1, 1], False), False)
sketch5.addGeometry(Part.BSplineCurve([App.Vector(4.609803, -10.3557, 0), App.Vector(4.591655, -10.423596, 0), App.Vector(4.556154, -10.556408, 0), App.Vector(4.485966, -10.746478, 0), App.Vector(4.407189, -10.92485, 0), App.Vector(4.317911, -11.091055, 0), App.Vector(4.217154, -11.244137, 0), App.Vector(4.107589, -11.386063, 0), App.Vector(3.984877, -11.513858, 0), App.Vector(3.853518, -11.630471, 0), App.Vector(3.712491, -11.733323, 0), App.Vector(3.563496, -11.822137, 0), App.Vector(3.407253, -11.8977, 0), App.Vector(3.24313, -11.959839, 0), App.Vector(3.071022, -12.006603, 0), App.Vector(2.891814, -12.040688, 0), App.Vector(2.704984, -12.061682, 0), App.Vector(2.577634, -12.064446, 0), App.Vector(2.512754, -12.065854, 0)], [4, 1, 1, 1, 1, 1, 1, 1, 1, 1, 1, 1, 1, 1, 1, 1, 4], [0, 1.145254194, 2.240259345, 3.299159039, 4.322497661, 5.312016644, 6.284080175, 7.241264552, 8.196044782, 9.144516039, 10.082428046, 11.020306713, 11.970622414, 12.939253955, 13.924100776, 14.94240044, 16], False, 3, [1, 1, 1, 1, 1, 1, 1, 1, 1, 1, 1, 1, 1, 1, 1, 1, 1, 1, 1], False), False)
sketch5.addConstraint(Sketcher.Constraint("Block", 4))
sketch5.addConstraint(Sketcher.Constraint("Block", 5))
sketch5.addConstraint(Sketcher.Constraint("Block", 6))
sketch5.addConstraint(Sketcher.Constraint("Block", 10))
sketch5.addConstraint(Sketcher.Constraint("Block", 11))
sketch5.addConstraint(Sketcher.Constraint("Block", 12))
sketch5.addConstraint(Sketcher.Constraint("Block", 15))
sketch5.addConstraint(Sketcher.Constraint("Block", 16))
sketch5.addConstraint(Sketcher.Constraint("Block", 17))
sketch5.addConstraint(Sketcher.Constraint("Block", 18))
sketch5.addConstraint(Sketcher.Constraint("Block", 20))
sketch5.addConstraint(Sketcher.Constraint("Block", 21))
sketch5.addConstraint(Sketcher.Constraint("Block", 22))
sketch5.addConstraint(Sketcher.Constraint("Block", 23))
sketch5.addConstraint(Sketcher.Constraint("Coincident", 0, 2, 1, 1))
sketch5.addConstraint(Sketcher.Constraint("Coincident", 1, 2, 2, 1))
sketch5.addConstraint(Sketcher.Constraint("Coincident", 2, 2, 3, 1))
sketch5.addConstraint(Sketcher.Constraint("Coincident", 3, 2, 4, 2))
sketch5.addConstraint(Sketcher.Constraint("Coincident", 6, 1, 7, 1))
sketch5.addConstraint(Sketcher.Constraint("Coincident", 7, 2, 0, 1))
sketch5.addConstraint(Sketcher.Constraint("Coincident", 8, 2, 9, 1))
sketch5.addConstraint(Sketcher.Constraint("Coincident", 9, 2, 10, 2))
sketch5.addConstraint(Sketcher.Constraint("Coincident", 12, 1, 13, 1))
sketch5.addConstraint(Sketcher.Constraint("Coincident", 13, 2, 8, 1))
sketch5.addConstraint(Sketcher.Constraint("Coincident", 14, 2, 15, 2))
sketch5.addConstraint(Sketcher.Constraint("Coincident", 18, 1, 19, 1))
sketch5.addConstraint(Sketcher.Constraint("Coincident", 19, 2, 20, 2))
sketch5.addConstraint(Sketcher.Constraint("Coincident", 23, 1, 14, 1))
sketch5.addConstraint(Sketcher.Constraint("Vertical", 0))
sketch5.addConstraint(Sketcher.Constraint("Horizontal", 1))
sketch5.addConstraint(Sketcher.Constraint("Vertical", 2))
sketch5.addConstraint(Sketcher.Constraint("Horizontal", 3))
sketch5.addConstraint(Sketcher.Constraint("Horizontal", 7))
sketch5.addConstraint(Sketcher.Constraint("Vertical", 8))
sketch5.addConstraint(Sketcher.Constraint("Horizontal", 9))
sketch5.addConstraint(Sketcher.Constraint("Horizontal", 13))
sketch5.addConstraint(Sketcher.Constraint("Vertical", 2, 2, 8, 2))
sketch5.addConstraint(Sketcher.Constraint("DistanceY", 0, 2, -1, 1, 12.0))
sketch5.addConstraint(Sketcher.Constraint("DistanceX", 7, 2, 7, 1, 1.887138))
sketch5.addConstraint(Sketcher.Constraint("DistanceX", 1, 1, 1, 2, 0.724398))
pocket1 = body.newObject("PartDesign::Pocket", "Pocket")
pocket1.Profile = sketch5
pocket1.Length = 1

# Sketch on XY plane
sketch6 = body.newObject("Sketcher::SketchObject", "Sketch005")
sketch6.AttachmentSupport = (doc.getObject("XY_Plane"), [""])
sketch6.MapMode = "FlatFace"
sketch6.AttachmentOffset = App.Placement(App.Vector(0, 0, -8), App.Rotation())
sketch6.addGeometry(Part.LineSegment(App.Vector(8.25, 9, 0), App.Vector(8.25, -9, 0)), False)
sketch6.addGeometry(Part.LineSegment(App.Vector(8.25, -9, 0), App.Vector(7.25, -9, 0)), False)
sketch6.addGeometry(Part.LineSegment(App.Vector(7.25, -9, 0), App.Vector(7.25, 9, 0)), False)
sketch6.addGeometry(Part.LineSegment(App.Vector(7.25, 9, 0), App.Vector(8.25, 9, 0)), False)
sketch6.addGeometry(Part.LineSegment(App.Vector(-7.272821, 9, 0), App.Vector(-7.272821, -9, 0)), False)
sketch6.addGeometry(Part.LineSegment(App.Vector(-7.272821, -9, 0), App.Vector(-8.272821, -9, 0)), False)
sketch6.addGeometry(Part.LineSegment(App.Vector(-8.272821, -9, 0), App.Vector(-8.272821, 9, 0)), False)
sketch6.addGeometry(Part.LineSegment(App.Vector(-8.272821, 9, 0), App.Vector(-7.272821, 9, 0)), False)
sketch6.addConstraint(Sketcher.Constraint("Coincident", 0, 2, 1, 1))
sketch6.addConstraint(Sketcher.Constraint("Coincident", 1, 2, 2, 1))
sketch6.addConstraint(Sketcher.Constraint("Coincident", 2, 2, 3, 1))
sketch6.addConstraint(Sketcher.Constraint("Coincident", 3, 2, 0, 1))
sketch6.addConstraint(Sketcher.Constraint("Coincident", 4, 2, 5, 1))
sketch6.addConstraint(Sketcher.Constraint("Coincident", 5, 2, 6, 1))
sketch6.addConstraint(Sketcher.Constraint("Coincident", 6, 2, 7, 1))
sketch6.addConstraint(Sketcher.Constraint("Coincident", 7, 2, 4, 1))
sketch6.addConstraint(Sketcher.Constraint("Vertical", 0))
sketch6.addConstraint(Sketcher.Constraint("Horizontal", 1))
sketch6.addConstraint(Sketcher.Constraint("Vertical", 2))
sketch6.addConstraint(Sketcher.Constraint("Horizontal", 3))
sketch6.addConstraint(Sketcher.Constraint("Vertical", 4))
sketch6.addConstraint(Sketcher.Constraint("Horizontal", 5))
sketch6.addConstraint(Sketcher.Constraint("Vertical", 6))
sketch6.addConstraint(Sketcher.Constraint("Horizontal", 7))
sketch6.addConstraint(Sketcher.Constraint("Horizontal", 1, 2, 4, 2))
sketch6.addConstraint(Sketcher.Constraint("Horizontal", 3, 2, 6, 2))
sketch6.addConstraint(Sketcher.Constraint("Equal", 3, 5))
sketch6.addConstraint(Sketcher.Constraint("DistanceX", 1, 2, 1, 1, 1.0))
sketch6.addConstraint(Sketcher.Constraint("DistanceY", 0, 2, 0, 1, 18.0))
sketch6.addConstraint(Sketcher.Constraint("DistanceY", 0, 2, -1, 1, 9.0))
sketch6.addConstraint(Sketcher.Constraint("DistanceX", -1, 1, 0, 2, 8.25))
sketch6.addConstraint(Sketcher.Constraint("DistanceX", 4, 2, -1, 1, 7.272821))
pocket2 = body.newObject("PartDesign::Pocket", "Pocket001")
pocket2.Profile = sketch6
pocket2.Length = 8
pocket2.Reversed = True

# Sketch on XY plane
sketch7 = body.newObject("Sketcher::SketchObject", "Sketch006")
sketch7.AttachmentSupport = (doc.getObject("XY_Plane"), [""])
sketch7.MapMode = "FlatFace"
sketch7.AttachmentOffset = App.Placement(App.Vector(0, 0, -8), App.Rotation())
sketch7.addGeometry(Part.LineSegment(App.Vector(9, 9, 0), App.Vector(9, 8.25, 0)), False)
sketch7.addGeometry(Part.LineSegment(App.Vector(9, 8.25, 0), App.Vector(8.25, 8.25, 0)), False)
sketch7.addGeometry(Part.LineSegment(App.Vector(8.25, 8.25, 0), App.Vector(8.25, 9, 0)), False)
sketch7.addGeometry(Part.LineSegment(App.Vector(8.25, 9, 0), App.Vector(9, 9, 0)), False)
sketch7.addGeometry(Part.LineSegment(App.Vector(-8.272821, 9, 0), App.Vector(-8.272821, 8.25, 0)), False)
sketch7.addGeometry(Part.LineSegment(App.Vector(-8.272821, 8.25, 0), App.Vector(-9, 8.25, 0)), False)
sketch7.addGeometry(Part.LineSegment(App.Vector(-9, 8.25, 0), App.Vector(-9, 9, 0)), False)
sketch7.addGeometry(Part.LineSegment(App.Vector(-9, 9, 0), App.Vector(-8.272821, 9, 0)), False)
sketch7.addGeometry(Part.LineSegment(App.Vector(-8.272821, -8.25, 0), App.Vector(-8.272821, -9, 0)), False)
sketch7.addGeometry(Part.LineSegment(App.Vector(-8.272821, -9, 0), App.Vector(-9, -9, 0)), False)
sketch7.addGeometry(Part.LineSegment(App.Vector(-9, -9, 0), App.Vector(-9, -8.25, 0)), False)
sketch7.addGeometry(Part.LineSegment(App.Vector(-9, -8.25, 0), App.Vector(-8.272821, -8.25, 0)), False)
sketch7.addGeometry(Part.LineSegment(App.Vector(9, -8.25, 0), App.Vector(9, -9, 0)), False)
sketch7.addGeometry(Part.LineSegment(App.Vector(9, -9, 0), App.Vector(8.25, -9, 0)), False)
sketch7.addGeometry(Part.LineSegment(App.Vector(8.25, -9, 0), App.Vector(8.25, -8.25, 0)), False)
sketch7.addGeometry(Part.LineSegment(App.Vector(8.25, -8.25, 0), App.Vector(9, -8.25, 0)), False)
sketch7.addConstraint(Sketcher.Constraint("Coincident", 0, 2, 1, 1))
sketch7.addConstraint(Sketcher.Constraint("Coincident", 1, 2, 2, 1))
sketch7.addConstraint(Sketcher.Constraint("Coincident", 2, 2, 3, 1))
sketch7.addConstraint(Sketcher.Constraint("Coincident", 3, 2, 0, 1))
sketch7.addConstraint(Sketcher.Constraint("Coincident", 4, 2, 5, 1))
sketch7.addConstraint(Sketcher.Constraint("Coincident", 5, 2, 6, 1))
sketch7.addConstraint(Sketcher.Constraint("Coincident", 6, 2, 7, 1))
sketch7.addConstraint(Sketcher.Constraint("Coincident", 7, 2, 4, 1))
sketch7.addConstraint(Sketcher.Constraint("Coincident", 8, 2, 9, 1))
sketch7.addConstraint(Sketcher.Constraint("Coincident", 9, 2, 10, 1))
sketch7.addConstraint(Sketcher.Constraint("Coincident", 10, 2, 11, 1))
sketch7.addConstraint(Sketcher.Constraint("Coincident", 11, 2, 8, 1))
sketch7.addConstraint(Sketcher.Constraint("Coincident", 12, 2, 13, 1))
sketch7.addConstraint(Sketcher.Constraint("Coincident", 13, 2, 14, 1))
sketch7.addConstraint(Sketcher.Constraint("Coincident", 14, 2, 15, 1))
sketch7.addConstraint(Sketcher.Constraint("Coincident", 15, 2, 12, 1))
sketch7.addConstraint(Sketcher.Constraint("Vertical", 0))
sketch7.addConstraint(Sketcher.Constraint("Horizontal", 1))
sketch7.addConstraint(Sketcher.Constraint("Vertical", 2))
sketch7.addConstraint(Sketcher.Constraint("Horizontal", 3))
sketch7.addConstraint(Sketcher.Constraint("Vertical", 4))
sketch7.addConstraint(Sketcher.Constraint("Horizontal", 5))
sketch7.addConstraint(Sketcher.Constraint("Vertical", 6))
sketch7.addConstraint(Sketcher.Constraint("Horizontal", 7))
sketch7.addConstraint(Sketcher.Constraint("Vertical", 8))
sketch7.addConstraint(Sketcher.Constraint("Horizontal", 9))
sketch7.addConstraint(Sketcher.Constraint("Vertical", 10))
sketch7.addConstraint(Sketcher.Constraint("Horizontal", 11))
sketch7.addConstraint(Sketcher.Constraint("Vertical", 12))
sketch7.addConstraint(Sketcher.Constraint("Horizontal", 13))
sketch7.addConstraint(Sketcher.Constraint("Vertical", 14))
sketch7.addConstraint(Sketcher.Constraint("Horizontal", 15))
sketch7.addConstraint(Sketcher.Constraint("Symmetric", 3, 2, 9, 2, -1, 1))
sketch7.addConstraint(Sketcher.Constraint("Symmetric", 6, 2, 12, 2, -1, 1))
sketch7.addConstraint(Sketcher.Constraint("Symmetric", 0, 2, 5, 2, -2))
sketch7.addConstraint(Sketcher.Constraint("Symmetric", 7, 2, 8, 2, -1))
sketch7.addConstraint(Sketcher.Constraint("Symmetric", 1, 2, 14, 2, -1))
sketch7.addConstraint(Sketcher.Constraint("Horizontal", 11, 2, 14, 2))
sketch7.addConstraint(Sketcher.Constraint("Equal", 15, 0))
sketch7.addConstraint(Sketcher.Constraint("DistanceX", -1, 1, 0, 2, 9.0))
sketch7.addConstraint(Sketcher.Constraint("DistanceY", -1, 1, 2, 2, 9.0))
sketch7.addConstraint(Sketcher.Constraint("DistanceX", 1, 2, 1, 1, 0.75))
sketch7.addConstraint(Sketcher.Constraint("DistanceX", 5, 2, 5, 1, 0.727179))
pocket3 = body.newObject("PartDesign::Pocket", "Pocket002")
pocket3.Profile = sketch7
pocket3.Length = 8
pocket3.Reversed = True

# Sketch on XZ plane
sketch8 = body.newObject("Sketcher::SketchObject", "Sketch007")
sketch8.AttachmentSupport = (doc.getObject("XZ_Plane"), [""])
sketch8.MapMode = "FlatFace"
sketch8.AttachmentOffset = App.Placement(App.Vector(0, 0, -8.25), App.Rotation())
sketch8.addGeometry(Part.LineSegment(App.Vector(9.982844, -6.028501, 0), App.Vector(8.977143, -8.025641, 0)), False)
sketch8.addGeometry(Part.LineSegment(App.Vector(8.977143, -8.025641, 0), App.Vector(8.982848, -6.025649, 0)), False)
sketch8.addGeometry(Part.LineSegment(App.Vector(8.982848, -6.025649, 0), App.Vector(9.982844, -6.028501, 0)), False)
sketch8.addGeometry(Part.LineSegment(App.Vector(-9, -6, 0), App.Vector(-9, -8, 0)), False)
sketch8.addGeometry(Part.LineSegment(App.Vector(-9, -8, 0), App.Vector(-10, -6, 0)), False)
sketch8.addGeometry(Part.LineSegment(App.Vector(-10, -6, 0), App.Vector(-9, -6, 0)), False)
sketch8.addConstraint(Sketcher.Constraint("Coincident", 0, 2, 1, 1))
sketch8.addConstraint(Sketcher.Constraint("Coincident", 1, 2, 2, 1))
sketch8.addConstraint(Sketcher.Constraint("Coincident", 2, 2, 0, 1))
sketch8.addConstraint(Sketcher.Constraint("Coincident", 3, 2, 4, 1))
sketch8.addConstraint(Sketcher.Constraint("Coincident", 4, 2, 5, 1))
sketch8.addConstraint(Sketcher.Constraint("Coincident", 5, 2, 3, 1))
sketch8.addConstraint(Sketcher.Constraint("Vertical", 3))
sketch8.addConstraint(Sketcher.Constraint("Horizontal", 5))
sketch8.addConstraint(Sketcher.Constraint("Perpendicular", 1, 2))
sketch8.addConstraint(Sketcher.Constraint("Equal", 0, 4))
sketch8.addConstraint(Sketcher.Constraint("DistanceX", 5, 1, 5, 2, 1.0))
sketch8.addConstraint(Sketcher.Constraint("DistanceY", 3, 2, 3, 1, 2.0))
sketch8.addConstraint(Sketcher.Constraint("Distance", 1, 2.0))
sketch8.addConstraint(Sketcher.Constraint("DistanceX", 3, 2, -1, 1, 9.0))
sketch8.addConstraint(Sketcher.Constraint("DistanceY", 3, 2, -1, 1, 8.0))
sketch8.addConstraint(Sketcher.Constraint("DistanceY", 2, 2, -1, 1, 6.028501))
sketch8.addConstraint(Sketcher.Constraint("DistanceX", 0, 2, 2, 2, 1.005701))
sketch8.addConstraint(Sketcher.Constraint("DistanceX", -1, 1, 0, 2, 8.977143))
pad5 = body.newObject("PartDesign::Pad", "Pad004")
pad5.Profile = sketch8
pad5.Length = 16.5

# Sketch on YZ plane
sketch9 = body.newObject("Sketcher::SketchObject", "Sketch008")
sketch9.AttachmentSupport = (doc.getObject("YZ_Plane"), [""])
sketch9.MapMode = "FlatFace"
sketch9.AttachmentOffset = App.Placement(App.Vector(0, 0, -7.272821), App.Rotation())
sketch9.addGeometry(Part.LineSegment(App.Vector(10, -6, 0), App.Vector(9, -8, 0)), False)
sketch9.addGeometry(Part.LineSegment(App.Vector(9, -8, 0), App.Vector(9, -6, 0)), False)
sketch9.addGeometry(Part.LineSegment(App.Vector(9, -6, 0), App.Vector(10, -6, 0)), False)
sketch9.addGeometry(Part.LineSegment(App.Vector(-9, -6, 0), App.Vector(-9, -8, 0)), False)
sketch9.addGeometry(Part.LineSegment(App.Vector(-9, -8, 0), App.Vector(-10, -6, 0)), False)
sketch9.addGeometry(Part.LineSegment(App.Vector(-10, -6, 0), App.Vector(-9, -6, 0)), False)
sketch9.addConstraint(Sketcher.Constraint("Coincident", 0, 2, 1, 1))
sketch9.addConstraint(Sketcher.Constraint("Coincident", 1, 2, 2, 1))
sketch9.addConstraint(Sketcher.Constraint("Coincident", 2, 2, 0, 1))
sketch9.addConstraint(Sketcher.Constraint("Coincident", 3, 2, 4, 1))
sketch9.addConstraint(Sketcher.Constraint("Coincident", 4, 2, 5, 1))
sketch9.addConstraint(Sketcher.Constraint("Coincident", 5, 2, 3, 1))
sketch9.addConstraint(Sketcher.Constraint("Vertical", 1))
sketch9.addConstraint(Sketcher.Constraint("Horizontal", 2))
sketch9.addConstraint(Sketcher.Constraint("Vertical", 3))
sketch9.addConstraint(Sketcher.Constraint("Horizontal", 5))
sketch9.addConstraint(Sketcher.Constraint("Symmetric", 0, 2, 3, 2, -2))
sketch9.addConstraint(Sketcher.Constraint("Symmetric", 2, 2, 4, 2, -2))
sketch9.addConstraint(Sketcher.Constraint("DistanceX", 2, 1, 2, 2, 1.0))
sketch9.addConstraint(Sketcher.Constraint("DistanceY", 1, 1, 1, 2, 2.0))
sketch9.addConstraint(Sketcher.Constraint("DistanceX", -1, 1, 0, 2, 9.0))
sketch9.addConstraint(Sketcher.Constraint("DistanceY", 0, 2, -1, 1, 8.0))
pad6 = body.newObject("PartDesign::Pad", "Pad005")
pad6.Profile = sketch9
pad6.Length = 14.522821

doc.recompute()
